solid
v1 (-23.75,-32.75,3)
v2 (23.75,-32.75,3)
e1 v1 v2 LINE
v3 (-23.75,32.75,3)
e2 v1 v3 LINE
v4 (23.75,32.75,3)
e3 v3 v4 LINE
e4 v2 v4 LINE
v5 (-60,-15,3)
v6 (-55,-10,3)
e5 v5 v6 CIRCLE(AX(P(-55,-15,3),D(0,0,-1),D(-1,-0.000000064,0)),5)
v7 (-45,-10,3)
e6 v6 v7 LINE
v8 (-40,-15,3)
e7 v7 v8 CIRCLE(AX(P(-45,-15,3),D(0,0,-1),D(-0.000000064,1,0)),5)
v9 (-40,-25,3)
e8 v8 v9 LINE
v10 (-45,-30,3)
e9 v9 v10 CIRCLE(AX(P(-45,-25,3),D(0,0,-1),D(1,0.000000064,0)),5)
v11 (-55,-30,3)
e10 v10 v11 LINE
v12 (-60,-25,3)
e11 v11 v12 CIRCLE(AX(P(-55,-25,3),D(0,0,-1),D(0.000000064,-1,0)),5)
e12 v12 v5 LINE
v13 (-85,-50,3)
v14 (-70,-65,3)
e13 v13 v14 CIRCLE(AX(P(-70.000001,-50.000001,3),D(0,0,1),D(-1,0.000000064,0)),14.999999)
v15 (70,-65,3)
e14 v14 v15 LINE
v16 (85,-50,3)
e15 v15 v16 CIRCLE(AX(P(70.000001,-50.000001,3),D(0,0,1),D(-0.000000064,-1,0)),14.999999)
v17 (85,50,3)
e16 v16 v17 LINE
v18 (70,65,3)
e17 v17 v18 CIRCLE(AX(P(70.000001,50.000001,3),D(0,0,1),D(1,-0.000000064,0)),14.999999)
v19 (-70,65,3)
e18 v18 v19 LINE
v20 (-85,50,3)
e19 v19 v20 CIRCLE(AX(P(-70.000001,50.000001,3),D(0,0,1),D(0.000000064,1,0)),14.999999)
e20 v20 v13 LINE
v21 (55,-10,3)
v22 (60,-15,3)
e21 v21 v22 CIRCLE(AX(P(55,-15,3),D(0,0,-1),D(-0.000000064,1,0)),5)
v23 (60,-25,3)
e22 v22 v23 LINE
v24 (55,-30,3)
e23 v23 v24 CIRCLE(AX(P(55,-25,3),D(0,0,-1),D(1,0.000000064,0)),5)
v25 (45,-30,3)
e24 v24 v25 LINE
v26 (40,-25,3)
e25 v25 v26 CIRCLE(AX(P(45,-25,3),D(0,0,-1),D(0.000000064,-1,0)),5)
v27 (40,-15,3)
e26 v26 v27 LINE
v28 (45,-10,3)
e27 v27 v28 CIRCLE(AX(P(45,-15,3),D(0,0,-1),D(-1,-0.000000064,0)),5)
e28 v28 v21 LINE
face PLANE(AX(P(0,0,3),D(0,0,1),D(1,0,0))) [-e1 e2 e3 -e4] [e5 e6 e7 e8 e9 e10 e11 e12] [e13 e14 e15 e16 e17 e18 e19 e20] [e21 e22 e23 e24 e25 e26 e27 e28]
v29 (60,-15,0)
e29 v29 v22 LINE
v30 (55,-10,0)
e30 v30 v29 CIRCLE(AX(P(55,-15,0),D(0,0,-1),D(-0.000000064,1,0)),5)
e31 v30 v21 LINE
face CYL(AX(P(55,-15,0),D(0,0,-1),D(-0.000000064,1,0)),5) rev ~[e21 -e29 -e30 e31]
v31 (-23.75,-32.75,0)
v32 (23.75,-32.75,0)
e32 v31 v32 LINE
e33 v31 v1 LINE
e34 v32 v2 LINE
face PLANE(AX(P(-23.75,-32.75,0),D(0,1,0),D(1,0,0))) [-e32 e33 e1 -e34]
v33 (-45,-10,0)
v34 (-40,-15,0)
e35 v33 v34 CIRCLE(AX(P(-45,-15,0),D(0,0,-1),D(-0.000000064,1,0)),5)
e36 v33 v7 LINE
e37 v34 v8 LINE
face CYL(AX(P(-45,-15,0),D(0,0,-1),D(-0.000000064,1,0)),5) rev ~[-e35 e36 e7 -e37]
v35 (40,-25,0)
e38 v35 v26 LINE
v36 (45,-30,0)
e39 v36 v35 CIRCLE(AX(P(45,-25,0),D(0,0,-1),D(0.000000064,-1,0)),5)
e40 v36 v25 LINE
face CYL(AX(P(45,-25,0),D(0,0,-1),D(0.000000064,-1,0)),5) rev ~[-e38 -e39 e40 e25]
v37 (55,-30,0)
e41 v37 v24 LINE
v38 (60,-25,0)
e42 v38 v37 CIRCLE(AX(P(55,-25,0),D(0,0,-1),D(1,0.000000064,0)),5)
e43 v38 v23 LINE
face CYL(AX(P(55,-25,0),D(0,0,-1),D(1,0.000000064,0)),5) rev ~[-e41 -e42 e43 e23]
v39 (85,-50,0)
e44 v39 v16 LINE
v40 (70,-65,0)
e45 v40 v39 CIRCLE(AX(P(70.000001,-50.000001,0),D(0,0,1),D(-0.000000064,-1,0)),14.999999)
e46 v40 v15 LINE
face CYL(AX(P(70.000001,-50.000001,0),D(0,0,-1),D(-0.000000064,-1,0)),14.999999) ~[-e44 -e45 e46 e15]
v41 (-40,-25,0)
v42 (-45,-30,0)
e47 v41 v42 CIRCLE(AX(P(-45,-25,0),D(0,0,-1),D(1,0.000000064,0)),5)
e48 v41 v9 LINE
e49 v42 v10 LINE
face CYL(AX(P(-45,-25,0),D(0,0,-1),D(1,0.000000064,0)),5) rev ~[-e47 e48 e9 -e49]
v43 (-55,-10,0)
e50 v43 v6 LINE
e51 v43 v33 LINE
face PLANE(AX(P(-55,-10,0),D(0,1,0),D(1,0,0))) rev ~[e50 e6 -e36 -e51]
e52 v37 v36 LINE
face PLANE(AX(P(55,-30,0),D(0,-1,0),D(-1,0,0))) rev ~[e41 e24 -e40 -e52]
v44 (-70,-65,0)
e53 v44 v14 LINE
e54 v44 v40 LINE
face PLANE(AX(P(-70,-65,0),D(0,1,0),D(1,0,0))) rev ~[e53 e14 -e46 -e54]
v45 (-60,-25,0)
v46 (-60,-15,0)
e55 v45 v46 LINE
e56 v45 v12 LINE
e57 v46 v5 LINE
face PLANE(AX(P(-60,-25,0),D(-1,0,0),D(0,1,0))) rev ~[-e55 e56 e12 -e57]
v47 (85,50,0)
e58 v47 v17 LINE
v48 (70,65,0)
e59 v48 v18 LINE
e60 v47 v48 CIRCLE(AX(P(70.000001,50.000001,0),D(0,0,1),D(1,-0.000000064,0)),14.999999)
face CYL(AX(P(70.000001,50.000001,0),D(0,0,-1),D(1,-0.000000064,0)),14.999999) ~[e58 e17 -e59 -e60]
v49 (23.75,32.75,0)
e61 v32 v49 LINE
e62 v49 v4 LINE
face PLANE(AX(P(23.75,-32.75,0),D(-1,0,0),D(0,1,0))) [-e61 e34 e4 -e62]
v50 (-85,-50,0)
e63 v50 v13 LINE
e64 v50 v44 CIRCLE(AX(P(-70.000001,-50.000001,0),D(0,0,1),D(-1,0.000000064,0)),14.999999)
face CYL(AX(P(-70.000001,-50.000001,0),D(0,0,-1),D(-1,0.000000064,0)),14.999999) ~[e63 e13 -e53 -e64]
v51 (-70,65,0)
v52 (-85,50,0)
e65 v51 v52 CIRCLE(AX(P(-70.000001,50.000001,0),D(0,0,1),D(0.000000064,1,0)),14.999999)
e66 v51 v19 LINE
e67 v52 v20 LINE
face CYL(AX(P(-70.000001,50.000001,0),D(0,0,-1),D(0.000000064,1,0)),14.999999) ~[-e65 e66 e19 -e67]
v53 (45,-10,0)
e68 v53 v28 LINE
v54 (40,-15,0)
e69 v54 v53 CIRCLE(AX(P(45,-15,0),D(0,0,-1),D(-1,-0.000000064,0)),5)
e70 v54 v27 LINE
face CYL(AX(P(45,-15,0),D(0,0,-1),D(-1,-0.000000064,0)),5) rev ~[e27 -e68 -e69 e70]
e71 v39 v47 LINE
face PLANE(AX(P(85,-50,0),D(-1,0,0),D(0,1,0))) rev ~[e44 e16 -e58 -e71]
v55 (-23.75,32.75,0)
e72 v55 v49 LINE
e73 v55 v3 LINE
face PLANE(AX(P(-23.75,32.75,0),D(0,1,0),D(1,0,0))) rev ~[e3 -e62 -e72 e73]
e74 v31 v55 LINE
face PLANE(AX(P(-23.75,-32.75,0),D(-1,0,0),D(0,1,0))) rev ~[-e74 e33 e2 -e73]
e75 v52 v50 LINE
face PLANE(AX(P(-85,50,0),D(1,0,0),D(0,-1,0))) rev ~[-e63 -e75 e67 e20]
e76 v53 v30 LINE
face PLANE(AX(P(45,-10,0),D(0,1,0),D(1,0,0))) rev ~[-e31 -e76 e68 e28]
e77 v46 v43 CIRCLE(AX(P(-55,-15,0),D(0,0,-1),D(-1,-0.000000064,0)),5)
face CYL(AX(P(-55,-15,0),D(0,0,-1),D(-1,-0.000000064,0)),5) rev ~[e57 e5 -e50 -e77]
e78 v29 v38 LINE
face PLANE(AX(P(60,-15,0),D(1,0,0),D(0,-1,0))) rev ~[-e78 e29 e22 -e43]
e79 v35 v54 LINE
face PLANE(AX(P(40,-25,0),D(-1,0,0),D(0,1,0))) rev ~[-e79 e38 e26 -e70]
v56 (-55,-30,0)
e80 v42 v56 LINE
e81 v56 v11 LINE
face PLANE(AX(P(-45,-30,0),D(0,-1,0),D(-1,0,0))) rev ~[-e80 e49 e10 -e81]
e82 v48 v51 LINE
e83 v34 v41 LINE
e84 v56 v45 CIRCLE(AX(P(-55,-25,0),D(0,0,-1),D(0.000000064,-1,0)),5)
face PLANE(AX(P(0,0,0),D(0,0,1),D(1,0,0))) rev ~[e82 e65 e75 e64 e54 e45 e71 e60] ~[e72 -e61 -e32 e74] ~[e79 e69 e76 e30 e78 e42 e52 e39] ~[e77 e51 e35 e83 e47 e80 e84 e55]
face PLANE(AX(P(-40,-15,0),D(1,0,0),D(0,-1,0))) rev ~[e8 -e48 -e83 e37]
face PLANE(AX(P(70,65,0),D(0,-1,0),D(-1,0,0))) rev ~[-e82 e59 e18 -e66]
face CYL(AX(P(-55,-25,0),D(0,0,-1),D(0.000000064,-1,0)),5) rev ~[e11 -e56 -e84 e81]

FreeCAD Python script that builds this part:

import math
import FreeCAD as App
import Part
import Sketcher

V = App.Vector
Q = App.Units.Quantity


def add_polygon(sketch, points):
    """Adds a closed chain of lines whose ends are joined by coincident constraints."""
    first, n = sketch.GeometryCount, len(points)
    for a, b in zip(points, points[1:] + points[:1]):
        sketch.addGeometry(Part.LineSegment(App.Vector(*a, 0), App.Vector(*b, 0)), False)
    for i in range(n):
        sketch.addConstraint(Sketcher.Constraint("Coincident", first + i, 2, first + (i + 1) % n, 1))

doc = App.newDocument("Part")
body = doc.addObject("PartDesign::Body", "Body")

sketch1 = doc.addObject("Sketcher::SketchObject", "Sketch")
body.addObject(sketch1)
sketch1.AttachmentSupport = (doc.XY_Plane, [""])
sketch1.MapMode = "FlatFace"
sketch1.addGeometry(Part.LineSegment(V(70, 65, 0), V(-70, 65, 0)), False)
sketch1.addGeometry(Part.ArcOfCircle(Part.Circle(V(-70, 50, 0), V(0, 0, 1), 15), math.radians(90), math.radians(180)), False)
sketch1.addGeometry(Part.LineSegment(V(-85, 50, 0), V(-85, -50, 0)), False)
sketch1.addGeometry(Part.ArcOfCircle(Part.Circle(V(-70, -50, 0), V(0, 0, 1), 15), math.radians(180), math.radians(270)), False)
sketch1.addGeometry(Part.LineSegment(V(-70, -65, 0), V(70, -65, 0)), False)
sketch1.addGeometry(Part.ArcOfCircle(Part.Circle(V(70, -50, 0), V(0, 0, 1), 15), math.radians(-90), math.radians(0)), False)
sketch1.addGeometry(Part.LineSegment(V(85, -50, 0), V(85, 50, 0)), False)
sketch1.addGeometry(Part.ArcOfCircle(Part.Circle(V(70, 50, 0), V(0, 0, 1), 15), math.radians(0), math.radians(90)), False)
sketch1.addGeometry(Part.LineSegment(V(-60, -25, 0), V(-60, -15, 0)), False)
sketch1.addGeometry(Part.ArcOfCircle(Part.Circle(V(-55, -15, 0), V(0, 0, 1), 5), math.radians(90), math.radians(180)), False)
sketch1.addGeometry(Part.LineSegment(V(-55, -10, 0), V(-45, -10, 0)), False)
sketch1.addGeometry(Part.ArcOfCircle(Part.Circle(V(-45, -15, 0), V(0, 0, 1), 5), math.radians(0), math.radians(90)), False)
sketch1.addGeometry(Part.LineSegment(V(-40, -15, 0), V(-40, -25, 0)), False)
sketch1.addGeometry(Part.ArcOfCircle(Part.Circle(V(-45, -25, 0), V(0, 0, 1), 5), math.radians(-90), math.radians(0)), False)
sketch1.addGeometry(Part.LineSegment(V(-45, -30, 0), V(-55, -30, 0)), False)
sketch1.addGeometry(Part.ArcOfCircle(Part.Circle(V(-55, -25, 0), V(0, 0, 1), 5), math.radians(180), math.radians(270)), False)
sketch1.addGeometry(Part.ArcOfCircle(Part.Circle(V(45, -15, 0), V(0, 0, 1), 5), math.radians(90), math.radians(180)), False)
sketch1.addGeometry(Part.LineSegment(V(45, -10, 0), V(55, -10, 0)), False)
sketch1.addGeometry(Part.ArcOfCircle(Part.Circle(V(55, -15, 0), V(0, 0, 1), 5), math.radians(0), math.radians(90)), False)
sketch1.addGeometry(Part.LineSegment(V(60, -15, 0), V(60, -25, 0)), False)
sketch1.addGeometry(Part.ArcOfCircle(Part.Circle(V(55, -25, 0), V(0, 0, 1), 5), math.radians(-90), math.radians(0)), False)
sketch1.addGeometry(Part.LineSegment(V(55, -30, 0), V(45, -30, 0)), False)
sketch1.addGeometry(Part.ArcOfCircle(Part.Circle(V(45, -25, 0), V(0, 0, 1), 5), math.radians(180), math.radians(270)), False)
sketch1.addGeometry(Part.LineSegment(V(40, -25, 0), V(40, -15, 0)), False)
add_polygon(sketch1, [(23.8, -32.8), (-23.8, -32.8), (-23.8, 32.8), (23.8, 32.8)])
sketch1.addConstraint(Sketcher.Constraint("Tangent", 0, 2, 1, 1))
sketch1.addConstraint(Sketcher.Constraint("Tangent", 1, 2, 2, 1))
sketch1.addConstraint(Sketcher.Constraint("Tangent", 2, 2, 3, 1))
sketch1.addConstraint(Sketcher.Constraint("Tangent", 3, 2, 4, 1))
sketch1.addConstraint(Sketcher.Constraint("Tangent", 4, 2, 5, 1))
sketch1.addConstraint(Sketcher.Constraint("Tangent", 5, 2, 6, 1))
sketch1.addConstraint(Sketcher.Constraint("Tangent", 6, 2, 7, 1))
sketch1.addConstraint(Sketcher.Constraint("Tangent", 7, 2, 0, 1))
sketch1.addConstraint(Sketcher.Constraint("Tangent", 8, 2, 9, 2))
sketch1.addConstraint(Sketcher.Constraint("Tangent", 9, 1, 10, 1))
sketch1.addConstraint(Sketcher.Constraint("Tangent", 10, 2, 11, 2))
sketch1.addConstraint(Sketcher.Constraint("Tangent", 11, 1, 12, 1))
sketch1.addConstraint(Sketcher.Constraint("Tangent", 12, 2, 13, 2))
sketch1.addConstraint(Sketcher.Constraint("Tangent", 13, 1, 14, 1))
sketch1.addConstraint(Sketcher.Constraint("Tangent", 14, 2, 15, 2))
sketch1.addConstraint(Sketcher.Constraint("Tangent", 15, 1, 8, 1))
sketch1.addConstraint(Sketcher.Constraint("Tangent", 16, 1, 17, 1))
sketch1.addConstraint(Sketcher.Constraint("Tangent", 17, 2, 18, 2))
sketch1.addConstraint(Sketcher.Constraint("Tangent", 18, 1, 19, 1))
sketch1.addConstraint(Sketcher.Constraint("Tangent", 19, 2, 20, 2))
sketch1.addConstraint(Sketcher.Constraint("Tangent", 20, 1, 21, 1))
sketch1.addConstraint(Sketcher.Constraint("Tangent", 21, 2, 22, 2))
sketch1.addConstraint(Sketcher.Constraint("Tangent", 22, 1, 23, 1))
sketch1.addConstraint(Sketcher.Constraint("Tangent", 23, 2, 16, 2))
sketch1.addConstraint(Sketcher.Constraint("Horizontal", 0))
sketch1.addConstraint(Sketcher.Constraint("Vertical", 2))
sketch1.addConstraint(Sketcher.Constraint("Horizontal", 4))
sketch1.addConstraint(Sketcher.Constraint("Vertical", 6))
sketch1.addConstraint(Sketcher.Constraint("Vertical", 8))
sketch1.addConstraint(Sketcher.Constraint("Horizontal", 10))
sketch1.addConstraint(Sketcher.Constraint("Vertical", 12))
sketch1.addConstraint(Sketcher.Constraint("Horizontal", 14))
sketch1.addConstraint(Sketcher.Constraint("Horizontal", 17))
sketch1.addConstraint(Sketcher.Constraint("Vertical", 19))
sketch1.addConstraint(Sketcher.Constraint("Horizontal", 21))
sketch1.addConstraint(Sketcher.Constraint("Vertical", 23))
sketch1.addConstraint(Sketcher.Constraint("Horizontal", 24))
sketch1.addConstraint(Sketcher.Constraint("Vertical", 25))
sketch1.addConstraint(Sketcher.Constraint("Horizontal", 26))
sketch1.addConstraint(Sketcher.Constraint("Vertical", 27))
sketch1.addConstraint(Sketcher.Constraint("Equal", 1, 3))
sketch1.addConstraint(Sketcher.Constraint("Equal", 3, 5))
sketch1.addConstraint(Sketcher.Constraint("Equal", 5, 7))
sketch1.addConstraint(Sketcher.Constraint("Equal", 9, 11))
sketch1.addConstraint(Sketcher.Constraint("Equal", 11, 13))
sketch1.addConstraint(Sketcher.Constraint("Equal", 13, 15))
sketch1.addConstraint(Sketcher.Constraint("Equal", 15, 16))
sketch1.addConstraint(Sketcher.Constraint("Equal", 16, 18))
sketch1.addConstraint(Sketcher.Constraint("Equal", 18, 20))
sketch1.addConstraint(Sketcher.Constraint("Equal", 20, 22))
sketch1.addConstraint(Sketcher.Constraint("Symmetric", 1, 3, 5, 3, -1, 1))
sketch1.addConstraint(Sketcher.Constraint("Symmetric", 24, 2, 26, 2, -1, 1))
sketch1.addConstraint(Sketcher.Constraint("Symmetric", 11, 3, 16, 3, -2))
sketch1.addConstraint(Sketcher.Constraint("Symmetric", 15, 3, 20, 3, -2))
sketch1.addConstraint(Sketcher.Constraint("Equal", 21, 8))
sketch1.addConstraint(Sketcher.Constraint("Radius", 1, Q("14.999999 mm")))
sketch1.addConstraint(Sketcher.Constraint("Radius", 9, Q("5 mm")))
sketch1.addConstraint(Sketcher.Constraint("DistanceX", 0, 2, 0, 1, Q("140 mm")))
sketch1.addConstraint(Sketcher.Constraint("DistanceX", 10, 1, 10, 2, Q("10 mm")))
sketch1.addConstraint(Sketcher.Constraint("DistanceY", 2, 2, 2, 1, Q("100 mm")))
sketch1.addConstraint(Sketcher.Constraint("DistanceX", 24, 2, 24, 1, Q("47.5 mm")))
sketch1.addConstraint(Sketcher.Constraint("DistanceY", 25, 1, 25, 2, Q("65.5 mm")))
sketch1.addConstraint(Sketcher.Constraint("DistanceX", 9, 3, -1, 1, Q("55 mm")))
sketch1.addConstraint(Sketcher.Constraint("DistanceY", 9, 3, -1, 1, Q("15 mm")))
pad1 = doc.addObject("PartDesign::Pad", "Pad")
body.addObject(pad1)
pad1.Profile = sketch1
pad1.Length = 3

doc.recompute()
